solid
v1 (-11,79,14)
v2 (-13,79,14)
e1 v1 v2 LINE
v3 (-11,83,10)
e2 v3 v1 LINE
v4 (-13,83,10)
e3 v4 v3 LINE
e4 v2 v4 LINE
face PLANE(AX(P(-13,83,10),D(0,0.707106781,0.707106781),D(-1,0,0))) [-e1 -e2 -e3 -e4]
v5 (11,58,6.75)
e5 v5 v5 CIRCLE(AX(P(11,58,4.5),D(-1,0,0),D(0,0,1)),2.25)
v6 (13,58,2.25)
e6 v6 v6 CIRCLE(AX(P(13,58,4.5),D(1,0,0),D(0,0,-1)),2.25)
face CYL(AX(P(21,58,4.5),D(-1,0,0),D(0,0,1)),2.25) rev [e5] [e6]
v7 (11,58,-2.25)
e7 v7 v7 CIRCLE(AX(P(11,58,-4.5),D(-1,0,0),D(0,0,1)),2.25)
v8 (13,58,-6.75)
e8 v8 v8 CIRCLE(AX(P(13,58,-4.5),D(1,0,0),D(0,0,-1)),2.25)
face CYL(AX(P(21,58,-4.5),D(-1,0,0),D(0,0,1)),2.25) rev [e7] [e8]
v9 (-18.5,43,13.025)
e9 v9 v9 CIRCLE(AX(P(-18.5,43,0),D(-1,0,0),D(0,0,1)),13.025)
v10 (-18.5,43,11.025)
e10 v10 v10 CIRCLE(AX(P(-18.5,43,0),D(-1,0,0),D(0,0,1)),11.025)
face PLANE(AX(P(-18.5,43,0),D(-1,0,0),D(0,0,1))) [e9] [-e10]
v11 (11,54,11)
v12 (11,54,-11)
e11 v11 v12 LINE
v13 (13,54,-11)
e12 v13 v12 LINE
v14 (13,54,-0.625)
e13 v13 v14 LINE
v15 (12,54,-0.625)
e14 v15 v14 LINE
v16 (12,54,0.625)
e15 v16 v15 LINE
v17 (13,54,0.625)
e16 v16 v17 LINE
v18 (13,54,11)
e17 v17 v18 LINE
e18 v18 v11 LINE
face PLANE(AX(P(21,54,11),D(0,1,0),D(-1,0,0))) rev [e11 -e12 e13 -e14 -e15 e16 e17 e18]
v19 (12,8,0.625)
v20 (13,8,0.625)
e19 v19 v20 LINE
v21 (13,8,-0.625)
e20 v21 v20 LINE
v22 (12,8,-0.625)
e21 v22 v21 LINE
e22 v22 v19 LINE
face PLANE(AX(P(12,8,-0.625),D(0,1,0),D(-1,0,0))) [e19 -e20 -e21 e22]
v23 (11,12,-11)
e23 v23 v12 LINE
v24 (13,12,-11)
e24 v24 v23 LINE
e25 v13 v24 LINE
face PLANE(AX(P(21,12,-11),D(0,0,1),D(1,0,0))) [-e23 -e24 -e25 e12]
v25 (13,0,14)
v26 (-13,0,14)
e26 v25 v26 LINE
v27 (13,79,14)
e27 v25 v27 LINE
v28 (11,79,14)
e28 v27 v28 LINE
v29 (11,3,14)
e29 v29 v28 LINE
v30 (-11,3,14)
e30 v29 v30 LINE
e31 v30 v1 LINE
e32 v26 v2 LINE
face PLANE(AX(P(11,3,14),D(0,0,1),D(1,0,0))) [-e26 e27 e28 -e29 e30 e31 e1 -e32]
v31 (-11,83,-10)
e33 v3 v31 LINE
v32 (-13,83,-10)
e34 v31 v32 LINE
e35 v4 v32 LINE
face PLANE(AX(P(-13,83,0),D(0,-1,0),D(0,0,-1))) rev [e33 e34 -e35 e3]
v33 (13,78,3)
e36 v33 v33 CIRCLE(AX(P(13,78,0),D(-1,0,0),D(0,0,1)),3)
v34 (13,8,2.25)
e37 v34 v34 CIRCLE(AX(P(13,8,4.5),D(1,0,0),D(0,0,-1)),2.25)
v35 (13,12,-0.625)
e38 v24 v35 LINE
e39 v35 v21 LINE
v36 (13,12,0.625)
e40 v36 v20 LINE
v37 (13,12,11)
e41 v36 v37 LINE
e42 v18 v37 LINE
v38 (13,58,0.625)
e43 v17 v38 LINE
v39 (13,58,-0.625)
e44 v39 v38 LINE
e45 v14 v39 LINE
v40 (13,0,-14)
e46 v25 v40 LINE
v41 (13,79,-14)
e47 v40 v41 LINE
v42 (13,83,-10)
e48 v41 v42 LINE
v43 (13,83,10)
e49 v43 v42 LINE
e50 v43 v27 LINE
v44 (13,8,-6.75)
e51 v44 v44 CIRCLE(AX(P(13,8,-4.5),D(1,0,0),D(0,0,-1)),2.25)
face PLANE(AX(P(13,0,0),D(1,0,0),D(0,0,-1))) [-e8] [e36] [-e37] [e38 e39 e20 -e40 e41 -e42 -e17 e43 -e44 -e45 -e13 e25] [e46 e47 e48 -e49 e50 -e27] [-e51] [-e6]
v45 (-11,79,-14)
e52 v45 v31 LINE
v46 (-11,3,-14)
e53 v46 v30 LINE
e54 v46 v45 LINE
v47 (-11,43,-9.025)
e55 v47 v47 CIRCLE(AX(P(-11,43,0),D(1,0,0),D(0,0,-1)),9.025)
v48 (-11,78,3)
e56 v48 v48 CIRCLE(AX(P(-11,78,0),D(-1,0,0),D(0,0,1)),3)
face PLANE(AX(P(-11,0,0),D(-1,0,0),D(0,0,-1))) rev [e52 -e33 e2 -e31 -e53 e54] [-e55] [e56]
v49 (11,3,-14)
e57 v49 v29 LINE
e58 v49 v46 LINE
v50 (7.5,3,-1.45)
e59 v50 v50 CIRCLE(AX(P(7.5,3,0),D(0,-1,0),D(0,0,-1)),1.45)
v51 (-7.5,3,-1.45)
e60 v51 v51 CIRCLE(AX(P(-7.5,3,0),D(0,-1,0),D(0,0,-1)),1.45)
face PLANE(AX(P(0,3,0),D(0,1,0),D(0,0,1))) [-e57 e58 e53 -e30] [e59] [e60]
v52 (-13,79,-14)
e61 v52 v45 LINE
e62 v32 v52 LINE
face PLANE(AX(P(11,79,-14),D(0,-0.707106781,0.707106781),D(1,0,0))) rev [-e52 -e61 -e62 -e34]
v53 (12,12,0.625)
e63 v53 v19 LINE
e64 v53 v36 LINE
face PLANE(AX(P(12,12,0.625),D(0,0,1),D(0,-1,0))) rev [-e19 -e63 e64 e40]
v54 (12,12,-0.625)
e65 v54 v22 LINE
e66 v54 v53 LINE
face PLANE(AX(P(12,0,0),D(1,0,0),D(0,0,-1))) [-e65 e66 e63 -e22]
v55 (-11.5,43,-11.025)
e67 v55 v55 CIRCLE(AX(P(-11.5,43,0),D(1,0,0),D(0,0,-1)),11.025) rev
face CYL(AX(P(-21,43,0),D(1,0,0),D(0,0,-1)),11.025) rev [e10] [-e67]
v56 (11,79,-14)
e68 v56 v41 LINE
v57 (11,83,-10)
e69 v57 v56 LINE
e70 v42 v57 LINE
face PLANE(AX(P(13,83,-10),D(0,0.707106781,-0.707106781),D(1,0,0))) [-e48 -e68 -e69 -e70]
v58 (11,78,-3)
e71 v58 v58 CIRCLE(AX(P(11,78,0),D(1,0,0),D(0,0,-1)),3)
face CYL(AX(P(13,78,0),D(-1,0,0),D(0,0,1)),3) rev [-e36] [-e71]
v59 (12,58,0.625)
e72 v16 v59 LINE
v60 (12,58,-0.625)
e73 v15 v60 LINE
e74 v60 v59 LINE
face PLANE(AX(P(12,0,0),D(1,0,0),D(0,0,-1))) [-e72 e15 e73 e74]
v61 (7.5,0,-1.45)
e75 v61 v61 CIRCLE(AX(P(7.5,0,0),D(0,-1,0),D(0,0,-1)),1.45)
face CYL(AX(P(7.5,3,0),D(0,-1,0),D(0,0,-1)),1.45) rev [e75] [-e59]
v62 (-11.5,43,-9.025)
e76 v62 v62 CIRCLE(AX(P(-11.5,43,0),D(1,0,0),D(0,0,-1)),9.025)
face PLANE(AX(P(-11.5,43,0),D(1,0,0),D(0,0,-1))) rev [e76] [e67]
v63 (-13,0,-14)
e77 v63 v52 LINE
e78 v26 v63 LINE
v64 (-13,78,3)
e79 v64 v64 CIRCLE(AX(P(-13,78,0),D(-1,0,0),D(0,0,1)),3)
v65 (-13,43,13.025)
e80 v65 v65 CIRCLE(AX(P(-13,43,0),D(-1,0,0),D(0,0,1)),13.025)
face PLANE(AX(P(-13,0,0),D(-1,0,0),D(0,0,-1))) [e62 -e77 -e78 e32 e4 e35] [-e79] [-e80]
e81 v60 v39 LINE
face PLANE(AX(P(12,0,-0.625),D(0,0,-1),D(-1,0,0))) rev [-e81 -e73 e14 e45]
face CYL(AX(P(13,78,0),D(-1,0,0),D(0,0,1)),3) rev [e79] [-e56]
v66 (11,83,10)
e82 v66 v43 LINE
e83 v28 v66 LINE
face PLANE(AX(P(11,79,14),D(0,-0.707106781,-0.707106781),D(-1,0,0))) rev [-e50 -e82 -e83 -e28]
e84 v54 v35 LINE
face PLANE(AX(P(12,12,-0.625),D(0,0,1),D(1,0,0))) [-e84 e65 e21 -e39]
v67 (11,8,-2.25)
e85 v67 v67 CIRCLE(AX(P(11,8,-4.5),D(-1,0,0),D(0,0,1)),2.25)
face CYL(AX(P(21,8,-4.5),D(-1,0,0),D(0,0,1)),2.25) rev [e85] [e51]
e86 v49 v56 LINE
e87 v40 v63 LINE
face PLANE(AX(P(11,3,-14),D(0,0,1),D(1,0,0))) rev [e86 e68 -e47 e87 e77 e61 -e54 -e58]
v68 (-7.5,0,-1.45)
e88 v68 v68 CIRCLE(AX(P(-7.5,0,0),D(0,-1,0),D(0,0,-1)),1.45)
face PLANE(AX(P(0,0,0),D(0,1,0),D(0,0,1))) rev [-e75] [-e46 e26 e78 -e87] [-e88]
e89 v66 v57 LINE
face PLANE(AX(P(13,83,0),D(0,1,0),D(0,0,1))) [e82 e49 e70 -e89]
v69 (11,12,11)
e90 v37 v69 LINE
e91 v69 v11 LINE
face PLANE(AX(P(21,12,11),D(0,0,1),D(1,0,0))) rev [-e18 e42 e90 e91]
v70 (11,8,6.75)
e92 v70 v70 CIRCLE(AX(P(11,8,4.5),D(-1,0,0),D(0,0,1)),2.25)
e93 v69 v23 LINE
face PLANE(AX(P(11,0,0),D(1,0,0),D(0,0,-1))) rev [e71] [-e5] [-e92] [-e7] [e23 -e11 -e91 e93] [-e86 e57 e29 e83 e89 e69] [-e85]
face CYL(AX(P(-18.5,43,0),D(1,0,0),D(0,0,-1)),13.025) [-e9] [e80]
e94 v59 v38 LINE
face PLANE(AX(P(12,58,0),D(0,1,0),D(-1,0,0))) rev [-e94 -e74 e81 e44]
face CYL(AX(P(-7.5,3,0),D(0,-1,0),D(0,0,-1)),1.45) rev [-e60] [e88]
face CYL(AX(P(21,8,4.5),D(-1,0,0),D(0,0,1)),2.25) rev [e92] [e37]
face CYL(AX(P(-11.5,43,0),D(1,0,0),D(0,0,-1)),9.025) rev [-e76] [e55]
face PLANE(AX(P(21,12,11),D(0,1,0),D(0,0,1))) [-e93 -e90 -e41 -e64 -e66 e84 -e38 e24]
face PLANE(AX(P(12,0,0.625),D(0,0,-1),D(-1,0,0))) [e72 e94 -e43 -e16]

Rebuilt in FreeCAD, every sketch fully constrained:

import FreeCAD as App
import Part
import Sketcher

V = App.Vector


def edges_at(feature, points):
    """Names of the edges that pass closest to the given points."""
    edges = feature.Shape.Edges
    near = lambda p: min(range(len(edges)), key=lambda i: edges[i].distToShape(Part.Vertex(*p))[0])
    return sorted({f"Edge{near(p) + 1}" for p in points})


def add_polygon(sketch, points):
    """Adds a closed chain of lines whose ends are joined by coincident constraints."""
    first, n = sketch.GeometryCount, len(points)
    for a, b in zip(points, points[1:] + points[:1]):
        sketch.addGeometry(Part.LineSegment(App.Vector(*a, 0), App.Vector(*b, 0)), False)
    for i in range(n):
        sketch.addConstraint(Sketcher.Constraint("Coincident", first + i, 2, first + (i + 1) % n, 1))

doc = App.newDocument("Part")
params = doc.addObject("Spreadsheet::Sheet", "Params")
for row, (alias, value) in enumerate([
    ("sketch1_width", "22 mm"),
    ("sketch1_height", "28 mm"),
    ("pad1_length", "3 mm"),
    ("sketch2_diameter", "2.9 mm"),
    ("sketch3_width", "83 mm"),
    ("sketch3_height", "28 mm"),
    ("pad2_length", "2 mm"),
    ("sketch4_diameter", "4.5 mm"),
    ("sketch4_width", "42 mm"),
    ("sketch4_height", "22 mm"),
    ("pocket2_length", "10 mm"),
    ("sketch5_diameter", "22.05 mm"),
    ("pocket3_length", "10 mm"),
    ("sketch6_diameter", "22.05 mm"),
    ("sketch6_diameter2", "18.05 mm"),
    ("pad3_length", "0.5 mm"),
    ("sketch7_diameter", "26.05 mm"),
    ("sketch7_diameter2", "22.05 mm"),
    ("pad4_length", "5.5 mm"),
    ("sketch8_width", "4 mm"),
    ("sketch8_height", "1.25 mm"),
    ("pocket4_length", "1 mm"),
    ("sketch9_diameter", "6 mm"),
    ("chamfer_size", "4 mm"),
], start=1):
    params.set(f"A{row}", alias)
    params.set(f"B{row}", "=" + value)
    params.setAlias(f"B{row}", alias)

body = doc.addObject("PartDesign::Body", "Body")

# Sketch on XZ plane
sketch1 = body.newObject("Sketcher::SketchObject", "Sketch")
sketch1.AttachmentSupport = (doc.getObject("XZ_Plane"), [""])
sketch1.MapMode = "FlatFace"
add_polygon(sketch1, [(-11, -14), (-11, 14), (11, 14), (11, -14)])  # lines 0-3
sketch1.addConstraint([
    Sketcher.Constraint("Vertical", 0),
    Sketcher.Constraint("Horizontal", 1),
    Sketcher.Constraint("Vertical", 2),
    Sketcher.Constraint("Horizontal", 3),
    Sketcher.Constraint("Symmetric", 0, 2, 2, 2, -1, 1),
    Sketcher.Constraint("DistanceX", 1, 1, 1, 2, 22.0),
    Sketcher.Constraint("DistanceY", 0, 1, 0, 2, 28.0),
])
sketch1.setExpression("Constraints[9]", "Params.sketch1_width")
sketch1.setExpression("Constraints[10]", "Params.sketch1_height")
pad1 = body.newObject("PartDesign::Pad", "Pad")
pad1.Profile = sketch1
pad1.setExpression("Length", "Params.pad1_length")
pad1.Reversed = True

# Sketch on XZ plane
sketch2 = body.newObject("Sketcher::SketchObject", "Sketch001")
sketch2.AttachmentSupport = (doc.getObject("XZ_Plane"), [""])
sketch2.MapMode = "FlatFace"
sketch2.addGeometry([
    Part.Circle(V(-7.5, 0, 0), V(0, 0, 1), 1.45),
    Part.Circle(V(7.5, 0, 0), V(0, 0, 1), 1.45),
], False)
sketch2.addConstraint([
    Sketcher.Constraint("Equal", 0, 1),
    Sketcher.Constraint("Symmetric", 0, 3, 1, 3, -1, 1),
    Sketcher.Constraint("PointOnObject", 0, 3, -1),
    Sketcher.Constraint("Diameter", 0, 2.9),
    Sketcher.Constraint("DistanceX", 0, 3, 1, 3, 15.0),
])
sketch2.setExpression("Constraints[3]", "Params.sketch2_diameter")
pocket1 = body.newObject("PartDesign::Pocket", "Pocket")
pocket1.Profile = sketch2
pocket1.Type = "ThroughAll"

# Sketch on YZ plane
sketch3 = body.newObject("Sketcher::SketchObject", "Sketch002")
sketch3.AttachmentSupport = (doc.getObject("YZ_Plane"), [""])
sketch3.MapMode = "FlatFace"
sketch3.AttachmentOffset = App.Placement(V(0, 0, 11), App.Rotation())
add_polygon(sketch3, [(83, 14), (0, 14), (0, -14), (83, -14)])  # lines 0-3
sketch3.addConstraint([
    Sketcher.Constraint("Horizontal", 0),
    Sketcher.Constraint("Vertical", 1),
    Sketcher.Constraint("Horizontal", 2),
    Sketcher.Constraint("Vertical", 3),
    Sketcher.Constraint("Symmetric", 0, 2, 1, 2, -1, 1),
    Sketcher.Constraint("DistanceX", 0, 2, 0, 1, 83.0),
    Sketcher.Constraint("DistanceY", 1, 2, 1, 1, 28.0),
])
sketch3.setExpression("Constraints[9]", "Params.sketch3_width")
sketch3.setExpression("Constraints[10]", "Params.sketch3_height")
pad2 = body.newObject("PartDesign::Pad", "Pad001")
pad2.Profile = sketch3
pad2.setExpression("Length", "Params.pad2_length")

# Sketch on YZ plane
sketch4 = body.newObject("Sketcher::SketchObject", "Sketch003")
sketch4.AttachmentSupport = (doc.getObject("YZ_Plane"), [""])
sketch4.MapMode = "FlatFace"
sketch4.AttachmentOffset = App.Placement(V(0, 0, 11), App.Rotation())
sketch4.addGeometry(Part.Circle(V(8, -4.5, 0), V(0, 0, 1), 2.25), False)  # 0
sketch4.addGeometry(Part.Circle(V(8, 4.5, 0), V(0, 0, 1), 2.25), False)  # 1
sketch4.addGeometry(Part.Circle(V(58, 4.5, 0), V(0, 0, 1), 2.25), False)  # 2
sketch4.addGeometry(Part.Circle(V(58, -4.5, 0), V(0, 0, 1), 2.25), False)  # 3
add_polygon(sketch4, [(54, -11), (12, -11), (12, 11), (54, 11)])  # lines 4-7
sketch4.addConstraint([
    Sketcher.Constraint("Horizontal", 4),
    Sketcher.Constraint("Vertical", 5),
    Sketcher.Constraint("Horizontal", 6),
    Sketcher.Constraint("Vertical", 7),
    Sketcher.Constraint("Equal", 0, 1),
    Sketcher.Constraint("Equal", 1, 2),
    Sketcher.Constraint("Equal", 2, 3),
    Sketcher.Constraint("Symmetric", 0, 3, 1, 3, -1),
    Sketcher.Constraint("Symmetric", 2, 3, 3, 3, -1),
    Sketcher.Constraint("Horizontal", 1, 3, 2, 3),
    Sketcher.Constraint("Diameter", 0, 4.5),
    Sketcher.Constraint("DistanceX", 4, 2, 4, 1, 42.0),
    Sketcher.Constraint("DistanceY", 5, 1, 5, 2, 22.0),
    Sketcher.Constraint("DistanceX", -1, 1, 0, 3, 8.0),
    Sketcher.Constraint("DistanceX", -1, 1, 2, 3, 58.0),
    Sketcher.Constraint("DistanceX", -1, 1, 4, 2, 12.0),
    Sketcher.Constraint("DistanceY", 4, 2, -1, 1, 11.0),
    Sketcher.Constraint("DistanceY", 0, 3, 1, 3, 9.0),
])
sketch4.setExpression("Constraints[14]", "Params.sketch4_diameter")
sketch4.setExpression("Constraints[15]", "Params.sketch4_width")
sketch4.setExpression("Constraints[16]", "Params.sketch4_height")
pocket2 = body.newObject("PartDesign::Pocket", "Pocket001")
pocket2.Profile = sketch4
pocket2.setExpression("Length", "Params.pocket2_length")
pocket2.Reversed = True
doc.recompute()

mirrored = body.newObject("PartDesign::Mirrored", "Mirrored")
mirrored.Originals = [pad2]
mirrored.MirrorPlane = (doc.getObject("YZ_Plane"), [""])
body.Tip = mirrored

# Sketch on YZ plane
sketch5 = body.newObject("Sketcher::SketchObject", "Sketch004")
sketch5.AttachmentSupport = (doc.getObject("YZ_Plane"), [""])
sketch5.MapMode = "FlatFace"
sketch5.AttachmentOffset = App.Placement(V(0, 0, -11), App.Rotation())
sketch5.addGeometry(Part.Circle(V(43, 0, 0), V(0, 0, 1), 11.025), False)
sketch5.addConstraint([
    Sketcher.Constraint("PointOnObject", 0, 3, -1),
    Sketcher.Constraint("Diameter", 0, 22.05),
    Sketcher.Constraint("DistanceX", -1, 1, 0, 3, 43.0),
])
sketch5.setExpression("Constraints[1]", "Params.sketch5_diameter")
pocket3 = body.newObject("PartDesign::Pocket", "Pocket002")
pocket3.Profile = sketch5
pocket3.setExpression("Length", "Params.pocket3_length")

# Sketch on YZ plane
sketch6 = body.newObject("Sketcher::SketchObject", "Sketch005")
sketch6.AttachmentSupport = (doc.getObject("YZ_Plane"), [""])
sketch6.MapMode = "FlatFace"
sketch6.AttachmentOffset = App.Placement(V(0, 0, -11), App.Rotation())
sketch6.addGeometry([
    Part.Circle(V(43, 0, 0), V(0, 0, 1), 11.025),
    Part.Circle(V(43, 0, 0), V(0, 0, 1), 9.025),
], False)
sketch6.addConstraint([
    Sketcher.Constraint("Coincident", 1, 3, 0, 3),
    Sketcher.Constraint("PointOnObject", 0, 3, -1),
    Sketcher.Constraint("Diameter", 0, 22.05),
    Sketcher.Constraint("Diameter", 1, 18.05),
    Sketcher.Constraint("DistanceX", -1, 1, 0, 3, 43.0),
])
sketch6.setExpression("Constraints[2]", "Params.sketch6_diameter")
sketch6.setExpression("Constraints[3]", "Params.sketch6_diameter2")
pad3 = body.newObject("PartDesign::Pad", "Pad002")
pad3.Profile = sketch6
pad3.setExpression("Length", "Params.pad3_length")
pad3.Reversed = True

# Sketch on YZ plane
sketch7 = body.newObject("Sketcher::SketchObject", "Sketch006")
sketch7.AttachmentSupport = (doc.getObject("YZ_Plane"), [""])
sketch7.MapMode = "FlatFace"
sketch7.AttachmentOffset = App.Placement(V(0, 0, -13), App.Rotation())
sketch7.addGeometry([
    Part.Circle(V(43, 0, 0), V(0, 0, 1), 13.025),
    Part.Circle(V(43, 0, 0), V(0, 0, 1), 11.025),
], False)
sketch7.addConstraint([
    Sketcher.Constraint("Coincident", 1, 3, 0, 3),
    Sketcher.Constraint("PointOnObject", 0, 3, -1),
    Sketcher.Constraint("Diameter", 0, 26.05),
    Sketcher.Constraint("Diameter", 1, 22.05),
    Sketcher.Constraint("DistanceX", -1, 1, 0, 3, 43.0),
])
sketch7.setExpression("Constraints[2]", "Params.sketch7_diameter")
sketch7.setExpression("Constraints[3]", "Params.sketch7_diameter2")
pad4 = body.newObject("PartDesign::Pad", "Pad003")
pad4.Profile = sketch7
pad4.setExpression("Length", "Params.pad4_length")
pad4.Reversed = True

# Sketch on YZ plane
sketch8 = body.newObject("Sketcher::SketchObject", "Sketch007")
sketch8.AttachmentSupport = (doc.getObject("YZ_Plane"), [""])
sketch8.MapMode = "FlatFace"
sketch8.AttachmentOffset = App.Placement(V(0, 0, 13), App.Rotation())
add_polygon(sketch8, [(58, 0.625), (54, 0.625), (54, -0.625), (58, -0.625)])  # lines 0-3
add_polygon(sketch8, [(12, 0.625), (8, 0.625), (8, -0.625), (12, -0.625)])  # lines 4-7
sketch8.addConstraint([
    Sketcher.Constraint("Horizontal", 0),
    Sketcher.Constraint("Vertical", 1),
    Sketcher.Constraint("Horizontal", 2),
    Sketcher.Constraint("Vertical", 3),
    Sketcher.Constraint("Horizontal", 4),
    Sketcher.Constraint("Vertical", 5),
    Sketcher.Constraint("Horizontal", 6),
    Sketcher.Constraint("Vertical", 7),
    Sketcher.Constraint("Horizontal", 3, 2, 4, 2),
    Sketcher.Constraint("Horizontal", 2, 2, 5, 2),
    Sketcher.Constraint("Equal", 2, 4),
    Sketcher.Constraint("DistanceX", 0, 2, 0, 1, 4.0),
    Sketcher.Constraint("DistanceX", -1, 1, 0, 2, 54.0),
    Sketcher.Constraint("DistanceX", -1, 1, 4, 2, 8.0),
    Sketcher.Constraint("DistanceY", 1, 2, 1, 1, 1.25),
    Sketcher.Constraint("DistanceY", -1, 1, 0, 2, 0.625),
])
sketch8.setExpression("Constraints[19]", "Params.sketch8_width")
sketch8.setExpression("Constraints[22]", "Params.sketch8_height")
pocket4 = body.newObject("PartDesign::Pocket", "Pocket003")
pocket4.Profile = sketch8
pocket4.setExpression("Length", "Params.pocket4_length")

# Sketch on YZ plane
sketch9 = body.newObject("Sketcher::SketchObject", "Sketch008")
sketch9.AttachmentSupport = (doc.getObject("YZ_Plane"), [""])
sketch9.MapMode = "FlatFace"
sketch9.AttachmentOffset = App.Placement(V(0, 0, 11), App.Rotation())
sketch9.addGeometry(Part.Circle(V(78, 0, 0), V(0, 0, 1), 3), False)
sketch9.addConstraint([
    Sketcher.Constraint("PointOnObject", 0, 3, -1),
    Sketcher.Constraint("Diameter", 0, 6.0),
    Sketcher.Constraint("DistanceX", -1, 1, 0, 3, 78.0),
])
sketch9.setExpression("Constraints[1]", "Params.sketch9_diameter")
pocket5 = body.newObject("PartDesign::Pocket", "Pocket004")
pocket5.Profile = sketch9
pocket5.Type = "ThroughAll"
pocket5.Midplane = True
doc.recompute()

chamfer = body.newObject("PartDesign::Chamfer", "Chamfer")
chamfer.Base = (pocket5, edges_at(pocket5, [
    (12, 83, 14),
    (12, 83, -14),
    (-12, 83, 14),
    (-12, 83, -14),
]))
chamfer.setExpression("Size", "Params.chamfer_size")

doc.recompute()
